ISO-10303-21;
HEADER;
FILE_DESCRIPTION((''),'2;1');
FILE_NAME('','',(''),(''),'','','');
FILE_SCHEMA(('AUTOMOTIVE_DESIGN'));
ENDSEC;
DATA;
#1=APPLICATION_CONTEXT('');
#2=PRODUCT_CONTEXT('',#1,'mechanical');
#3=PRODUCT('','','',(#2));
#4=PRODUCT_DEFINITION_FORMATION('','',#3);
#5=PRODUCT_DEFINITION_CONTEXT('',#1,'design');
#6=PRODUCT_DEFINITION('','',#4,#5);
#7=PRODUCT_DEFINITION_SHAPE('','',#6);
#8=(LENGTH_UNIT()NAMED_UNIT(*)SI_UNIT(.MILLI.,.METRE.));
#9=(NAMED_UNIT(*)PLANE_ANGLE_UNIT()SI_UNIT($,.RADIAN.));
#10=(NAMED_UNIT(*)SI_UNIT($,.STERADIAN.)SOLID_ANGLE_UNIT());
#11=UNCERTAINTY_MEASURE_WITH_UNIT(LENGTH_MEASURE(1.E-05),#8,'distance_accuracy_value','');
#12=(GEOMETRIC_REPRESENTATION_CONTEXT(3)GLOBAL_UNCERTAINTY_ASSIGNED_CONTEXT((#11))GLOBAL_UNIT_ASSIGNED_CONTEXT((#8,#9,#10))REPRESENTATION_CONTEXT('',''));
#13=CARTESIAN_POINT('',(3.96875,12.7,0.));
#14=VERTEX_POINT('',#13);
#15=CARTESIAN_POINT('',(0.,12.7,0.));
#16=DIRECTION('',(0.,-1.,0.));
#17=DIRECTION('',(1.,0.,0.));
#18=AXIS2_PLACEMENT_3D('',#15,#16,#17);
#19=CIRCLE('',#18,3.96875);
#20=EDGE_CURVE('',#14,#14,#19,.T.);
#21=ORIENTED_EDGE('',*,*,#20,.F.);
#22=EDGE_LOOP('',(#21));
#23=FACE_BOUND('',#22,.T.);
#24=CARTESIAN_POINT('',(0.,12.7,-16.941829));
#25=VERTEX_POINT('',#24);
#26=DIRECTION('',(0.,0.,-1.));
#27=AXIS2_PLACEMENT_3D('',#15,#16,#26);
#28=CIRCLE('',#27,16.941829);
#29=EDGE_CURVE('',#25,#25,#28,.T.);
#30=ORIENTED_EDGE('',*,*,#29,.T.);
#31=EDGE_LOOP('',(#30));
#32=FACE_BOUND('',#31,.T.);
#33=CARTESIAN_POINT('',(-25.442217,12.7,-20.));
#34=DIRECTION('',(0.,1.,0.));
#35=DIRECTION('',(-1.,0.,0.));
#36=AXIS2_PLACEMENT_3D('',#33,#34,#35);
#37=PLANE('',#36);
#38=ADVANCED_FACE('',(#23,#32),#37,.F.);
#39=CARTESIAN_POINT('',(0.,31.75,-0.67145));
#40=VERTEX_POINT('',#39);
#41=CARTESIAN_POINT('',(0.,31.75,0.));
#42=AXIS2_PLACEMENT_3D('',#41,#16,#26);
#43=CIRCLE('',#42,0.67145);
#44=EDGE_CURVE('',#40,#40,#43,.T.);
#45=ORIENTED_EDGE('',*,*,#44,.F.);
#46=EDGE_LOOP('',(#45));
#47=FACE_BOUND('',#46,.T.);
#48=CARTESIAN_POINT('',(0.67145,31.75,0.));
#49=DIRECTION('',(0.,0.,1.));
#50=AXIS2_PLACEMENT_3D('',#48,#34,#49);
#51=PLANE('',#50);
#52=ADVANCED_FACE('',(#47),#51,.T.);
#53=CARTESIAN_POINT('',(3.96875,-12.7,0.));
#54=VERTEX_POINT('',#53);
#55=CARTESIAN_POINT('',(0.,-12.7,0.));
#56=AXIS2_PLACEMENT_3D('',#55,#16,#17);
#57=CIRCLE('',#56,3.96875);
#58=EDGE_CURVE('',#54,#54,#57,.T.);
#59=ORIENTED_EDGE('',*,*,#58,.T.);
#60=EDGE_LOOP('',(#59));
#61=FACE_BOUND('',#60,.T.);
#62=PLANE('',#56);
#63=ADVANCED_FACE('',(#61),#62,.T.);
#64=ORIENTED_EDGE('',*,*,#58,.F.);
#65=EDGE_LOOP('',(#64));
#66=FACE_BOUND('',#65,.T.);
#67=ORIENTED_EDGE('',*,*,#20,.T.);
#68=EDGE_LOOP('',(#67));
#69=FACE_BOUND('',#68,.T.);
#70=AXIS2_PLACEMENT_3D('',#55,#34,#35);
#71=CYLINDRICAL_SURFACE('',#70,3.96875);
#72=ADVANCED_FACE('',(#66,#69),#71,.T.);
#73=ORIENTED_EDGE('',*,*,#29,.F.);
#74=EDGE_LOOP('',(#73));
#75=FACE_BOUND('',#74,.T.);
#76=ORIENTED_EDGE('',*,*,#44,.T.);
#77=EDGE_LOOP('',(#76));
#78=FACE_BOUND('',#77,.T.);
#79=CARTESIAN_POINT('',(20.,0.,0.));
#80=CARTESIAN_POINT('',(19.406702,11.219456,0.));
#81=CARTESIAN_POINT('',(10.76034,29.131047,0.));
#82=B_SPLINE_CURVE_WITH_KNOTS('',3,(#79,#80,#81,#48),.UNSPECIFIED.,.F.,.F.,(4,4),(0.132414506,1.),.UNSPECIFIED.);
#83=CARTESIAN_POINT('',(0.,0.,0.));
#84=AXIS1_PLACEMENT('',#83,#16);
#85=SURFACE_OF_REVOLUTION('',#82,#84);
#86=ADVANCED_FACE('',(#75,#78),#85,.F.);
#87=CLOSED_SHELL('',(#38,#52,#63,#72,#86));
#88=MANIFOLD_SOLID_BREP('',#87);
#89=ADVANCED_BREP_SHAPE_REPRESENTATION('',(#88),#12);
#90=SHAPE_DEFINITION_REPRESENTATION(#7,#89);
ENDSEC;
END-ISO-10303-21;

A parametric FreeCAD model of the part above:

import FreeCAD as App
import Part
import Sketcher
Q = App.Units.Quantity


def add_polygon(sketch, points):
    """Adds a closed chain of lines whose ends are joined by coincident constraints."""
    first, n = sketch.GeometryCount, len(points)
    for a, b in zip(points, points[1:] + points[:1]):
        sketch.addGeometry(Part.LineSegment(App.Vector(*a, 0), App.Vector(*b, 0)), False)
    for i in range(n):
        sketch.addConstraint(Sketcher.Constraint("Coincident", first + i, 2, first + (i + 1) % n, 1))

doc = App.newDocument("Part")
body = doc.addObject("PartDesign::Body", "Body")

# Sketch on XY plane
sketch1 = body.newObject("Sketcher::SketchObject", "Sketch")
sketch1.AttachmentSupport = (doc.getObject("XY_Plane"), [""])
sketch1.MapMode = "FlatFace"
sketch1.addGeometry([
    Part.LineSegment(App.Vector(0, 31.75, 0), App.Vector(0, 0, 0)),
    Part.LineSegment(App.Vector(0, 0, 0), App.Vector(20, 0, 0)),
    Part.BSplineCurve([App.Vector(0.67145, 31.75, 0), App.Vector(10.76034, 29.131047, 0), App.Vector(19.406702, 11.219456, 0), App.Vector(20, 0, 0)], [4, 4], [0.132414506, 1], False, 3, [1, 1, 1, 1], False),
    Part.LineSegment(App.Vector(0.67145, 31.75, 0), App.Vector(0, 31.75, 0)),
], False)
sketch1.addConstraint([
    Sketcher.Constraint("Block", 2),
    Sketcher.Constraint("Coincident", 0, 2, 1, 1),
    Sketcher.Constraint("Coincident", 1, 2, 2, 2),
    Sketcher.Constraint("Coincident", 2, 1, 3, 1),
    Sketcher.Constraint("Coincident", 3, 2, 0, 1),
    Sketcher.Constraint("Vertical", 0),
    Sketcher.Constraint("Horizontal", 1),
    Sketcher.Constraint("Horizontal", 3),
    Sketcher.Constraint("PointOnObject", 3, 2, -2),
])
revolution = body.newObject("PartDesign::Revolution", "Revolution")
revolution.Profile = sketch1
revolution.ReferenceAxis = (sketch1, ["V_Axis"])
revolution.Angle = 360

# Sketch on XY plane
sketch2 = body.newObject("Sketcher::SketchObject", "Sketch001")
sketch2.AttachmentSupport = (doc.getObject("XY_Plane"), [""])
sketch2.MapMode = "FlatFace"
add_polygon(sketch2, [(-25, 13), (-25, -11), (28, -11), (28, 13)])  # lines 0-3
sketch2.addConstraint([
    Sketcher.Constraint("Vertical", 0),
    Sketcher.Constraint("Horizontal", 1),
    Sketcher.Constraint("Vertical", 2),
    Sketcher.Constraint("Horizontal", 3),
    Sketcher.Constraint("DistanceY", -1, 1, 2, 2, Q("0.5 in")),
    Sketcher.Constraint("DistanceY", 0, 2, 0, 1, Q("23.637371 mm")),
    Sketcher.Constraint("DistanceX", 1, 1, 1, 2, Q("53.107978 mm")),
    Sketcher.Constraint("DistanceX", -1, 1, 1, 2, Q("27.66576 mm")),
])
pocket1 = body.newObject("PartDesign::Pocket", "Pocket")
pocket1.Profile = sketch2
pocket1.Type = "ThroughAll"
pocket1.Midplane = True

# Sketch on XZ plane
sketch3 = body.newObject("Sketcher::SketchObject", "Sketch002")
sketch3.AttachmentSupport = (doc.getObject("XZ_Plane"), [""])
sketch3.MapMode = "FlatFace"
sketch3.AttachmentOffset = App.Placement(App.Vector(0, 0, -0.5 * 25.4), App.Rotation())
sketch3.addGeometry(Part.Circle(App.Vector(0, 0, 0), App.Vector(0, 0, 1), 4), False)
sketch3.addConstraint([
    Sketcher.Constraint("Coincident", 0, 3, -1, 1),
    Sketcher.Constraint("Diameter", 0, Q("0.3125 in")),
])
pad1 = body.newObject("PartDesign::Pad", "Pad")
pad1.Profile = sketch3
pad1.Length = Q("1 in")

doc.recompute()
